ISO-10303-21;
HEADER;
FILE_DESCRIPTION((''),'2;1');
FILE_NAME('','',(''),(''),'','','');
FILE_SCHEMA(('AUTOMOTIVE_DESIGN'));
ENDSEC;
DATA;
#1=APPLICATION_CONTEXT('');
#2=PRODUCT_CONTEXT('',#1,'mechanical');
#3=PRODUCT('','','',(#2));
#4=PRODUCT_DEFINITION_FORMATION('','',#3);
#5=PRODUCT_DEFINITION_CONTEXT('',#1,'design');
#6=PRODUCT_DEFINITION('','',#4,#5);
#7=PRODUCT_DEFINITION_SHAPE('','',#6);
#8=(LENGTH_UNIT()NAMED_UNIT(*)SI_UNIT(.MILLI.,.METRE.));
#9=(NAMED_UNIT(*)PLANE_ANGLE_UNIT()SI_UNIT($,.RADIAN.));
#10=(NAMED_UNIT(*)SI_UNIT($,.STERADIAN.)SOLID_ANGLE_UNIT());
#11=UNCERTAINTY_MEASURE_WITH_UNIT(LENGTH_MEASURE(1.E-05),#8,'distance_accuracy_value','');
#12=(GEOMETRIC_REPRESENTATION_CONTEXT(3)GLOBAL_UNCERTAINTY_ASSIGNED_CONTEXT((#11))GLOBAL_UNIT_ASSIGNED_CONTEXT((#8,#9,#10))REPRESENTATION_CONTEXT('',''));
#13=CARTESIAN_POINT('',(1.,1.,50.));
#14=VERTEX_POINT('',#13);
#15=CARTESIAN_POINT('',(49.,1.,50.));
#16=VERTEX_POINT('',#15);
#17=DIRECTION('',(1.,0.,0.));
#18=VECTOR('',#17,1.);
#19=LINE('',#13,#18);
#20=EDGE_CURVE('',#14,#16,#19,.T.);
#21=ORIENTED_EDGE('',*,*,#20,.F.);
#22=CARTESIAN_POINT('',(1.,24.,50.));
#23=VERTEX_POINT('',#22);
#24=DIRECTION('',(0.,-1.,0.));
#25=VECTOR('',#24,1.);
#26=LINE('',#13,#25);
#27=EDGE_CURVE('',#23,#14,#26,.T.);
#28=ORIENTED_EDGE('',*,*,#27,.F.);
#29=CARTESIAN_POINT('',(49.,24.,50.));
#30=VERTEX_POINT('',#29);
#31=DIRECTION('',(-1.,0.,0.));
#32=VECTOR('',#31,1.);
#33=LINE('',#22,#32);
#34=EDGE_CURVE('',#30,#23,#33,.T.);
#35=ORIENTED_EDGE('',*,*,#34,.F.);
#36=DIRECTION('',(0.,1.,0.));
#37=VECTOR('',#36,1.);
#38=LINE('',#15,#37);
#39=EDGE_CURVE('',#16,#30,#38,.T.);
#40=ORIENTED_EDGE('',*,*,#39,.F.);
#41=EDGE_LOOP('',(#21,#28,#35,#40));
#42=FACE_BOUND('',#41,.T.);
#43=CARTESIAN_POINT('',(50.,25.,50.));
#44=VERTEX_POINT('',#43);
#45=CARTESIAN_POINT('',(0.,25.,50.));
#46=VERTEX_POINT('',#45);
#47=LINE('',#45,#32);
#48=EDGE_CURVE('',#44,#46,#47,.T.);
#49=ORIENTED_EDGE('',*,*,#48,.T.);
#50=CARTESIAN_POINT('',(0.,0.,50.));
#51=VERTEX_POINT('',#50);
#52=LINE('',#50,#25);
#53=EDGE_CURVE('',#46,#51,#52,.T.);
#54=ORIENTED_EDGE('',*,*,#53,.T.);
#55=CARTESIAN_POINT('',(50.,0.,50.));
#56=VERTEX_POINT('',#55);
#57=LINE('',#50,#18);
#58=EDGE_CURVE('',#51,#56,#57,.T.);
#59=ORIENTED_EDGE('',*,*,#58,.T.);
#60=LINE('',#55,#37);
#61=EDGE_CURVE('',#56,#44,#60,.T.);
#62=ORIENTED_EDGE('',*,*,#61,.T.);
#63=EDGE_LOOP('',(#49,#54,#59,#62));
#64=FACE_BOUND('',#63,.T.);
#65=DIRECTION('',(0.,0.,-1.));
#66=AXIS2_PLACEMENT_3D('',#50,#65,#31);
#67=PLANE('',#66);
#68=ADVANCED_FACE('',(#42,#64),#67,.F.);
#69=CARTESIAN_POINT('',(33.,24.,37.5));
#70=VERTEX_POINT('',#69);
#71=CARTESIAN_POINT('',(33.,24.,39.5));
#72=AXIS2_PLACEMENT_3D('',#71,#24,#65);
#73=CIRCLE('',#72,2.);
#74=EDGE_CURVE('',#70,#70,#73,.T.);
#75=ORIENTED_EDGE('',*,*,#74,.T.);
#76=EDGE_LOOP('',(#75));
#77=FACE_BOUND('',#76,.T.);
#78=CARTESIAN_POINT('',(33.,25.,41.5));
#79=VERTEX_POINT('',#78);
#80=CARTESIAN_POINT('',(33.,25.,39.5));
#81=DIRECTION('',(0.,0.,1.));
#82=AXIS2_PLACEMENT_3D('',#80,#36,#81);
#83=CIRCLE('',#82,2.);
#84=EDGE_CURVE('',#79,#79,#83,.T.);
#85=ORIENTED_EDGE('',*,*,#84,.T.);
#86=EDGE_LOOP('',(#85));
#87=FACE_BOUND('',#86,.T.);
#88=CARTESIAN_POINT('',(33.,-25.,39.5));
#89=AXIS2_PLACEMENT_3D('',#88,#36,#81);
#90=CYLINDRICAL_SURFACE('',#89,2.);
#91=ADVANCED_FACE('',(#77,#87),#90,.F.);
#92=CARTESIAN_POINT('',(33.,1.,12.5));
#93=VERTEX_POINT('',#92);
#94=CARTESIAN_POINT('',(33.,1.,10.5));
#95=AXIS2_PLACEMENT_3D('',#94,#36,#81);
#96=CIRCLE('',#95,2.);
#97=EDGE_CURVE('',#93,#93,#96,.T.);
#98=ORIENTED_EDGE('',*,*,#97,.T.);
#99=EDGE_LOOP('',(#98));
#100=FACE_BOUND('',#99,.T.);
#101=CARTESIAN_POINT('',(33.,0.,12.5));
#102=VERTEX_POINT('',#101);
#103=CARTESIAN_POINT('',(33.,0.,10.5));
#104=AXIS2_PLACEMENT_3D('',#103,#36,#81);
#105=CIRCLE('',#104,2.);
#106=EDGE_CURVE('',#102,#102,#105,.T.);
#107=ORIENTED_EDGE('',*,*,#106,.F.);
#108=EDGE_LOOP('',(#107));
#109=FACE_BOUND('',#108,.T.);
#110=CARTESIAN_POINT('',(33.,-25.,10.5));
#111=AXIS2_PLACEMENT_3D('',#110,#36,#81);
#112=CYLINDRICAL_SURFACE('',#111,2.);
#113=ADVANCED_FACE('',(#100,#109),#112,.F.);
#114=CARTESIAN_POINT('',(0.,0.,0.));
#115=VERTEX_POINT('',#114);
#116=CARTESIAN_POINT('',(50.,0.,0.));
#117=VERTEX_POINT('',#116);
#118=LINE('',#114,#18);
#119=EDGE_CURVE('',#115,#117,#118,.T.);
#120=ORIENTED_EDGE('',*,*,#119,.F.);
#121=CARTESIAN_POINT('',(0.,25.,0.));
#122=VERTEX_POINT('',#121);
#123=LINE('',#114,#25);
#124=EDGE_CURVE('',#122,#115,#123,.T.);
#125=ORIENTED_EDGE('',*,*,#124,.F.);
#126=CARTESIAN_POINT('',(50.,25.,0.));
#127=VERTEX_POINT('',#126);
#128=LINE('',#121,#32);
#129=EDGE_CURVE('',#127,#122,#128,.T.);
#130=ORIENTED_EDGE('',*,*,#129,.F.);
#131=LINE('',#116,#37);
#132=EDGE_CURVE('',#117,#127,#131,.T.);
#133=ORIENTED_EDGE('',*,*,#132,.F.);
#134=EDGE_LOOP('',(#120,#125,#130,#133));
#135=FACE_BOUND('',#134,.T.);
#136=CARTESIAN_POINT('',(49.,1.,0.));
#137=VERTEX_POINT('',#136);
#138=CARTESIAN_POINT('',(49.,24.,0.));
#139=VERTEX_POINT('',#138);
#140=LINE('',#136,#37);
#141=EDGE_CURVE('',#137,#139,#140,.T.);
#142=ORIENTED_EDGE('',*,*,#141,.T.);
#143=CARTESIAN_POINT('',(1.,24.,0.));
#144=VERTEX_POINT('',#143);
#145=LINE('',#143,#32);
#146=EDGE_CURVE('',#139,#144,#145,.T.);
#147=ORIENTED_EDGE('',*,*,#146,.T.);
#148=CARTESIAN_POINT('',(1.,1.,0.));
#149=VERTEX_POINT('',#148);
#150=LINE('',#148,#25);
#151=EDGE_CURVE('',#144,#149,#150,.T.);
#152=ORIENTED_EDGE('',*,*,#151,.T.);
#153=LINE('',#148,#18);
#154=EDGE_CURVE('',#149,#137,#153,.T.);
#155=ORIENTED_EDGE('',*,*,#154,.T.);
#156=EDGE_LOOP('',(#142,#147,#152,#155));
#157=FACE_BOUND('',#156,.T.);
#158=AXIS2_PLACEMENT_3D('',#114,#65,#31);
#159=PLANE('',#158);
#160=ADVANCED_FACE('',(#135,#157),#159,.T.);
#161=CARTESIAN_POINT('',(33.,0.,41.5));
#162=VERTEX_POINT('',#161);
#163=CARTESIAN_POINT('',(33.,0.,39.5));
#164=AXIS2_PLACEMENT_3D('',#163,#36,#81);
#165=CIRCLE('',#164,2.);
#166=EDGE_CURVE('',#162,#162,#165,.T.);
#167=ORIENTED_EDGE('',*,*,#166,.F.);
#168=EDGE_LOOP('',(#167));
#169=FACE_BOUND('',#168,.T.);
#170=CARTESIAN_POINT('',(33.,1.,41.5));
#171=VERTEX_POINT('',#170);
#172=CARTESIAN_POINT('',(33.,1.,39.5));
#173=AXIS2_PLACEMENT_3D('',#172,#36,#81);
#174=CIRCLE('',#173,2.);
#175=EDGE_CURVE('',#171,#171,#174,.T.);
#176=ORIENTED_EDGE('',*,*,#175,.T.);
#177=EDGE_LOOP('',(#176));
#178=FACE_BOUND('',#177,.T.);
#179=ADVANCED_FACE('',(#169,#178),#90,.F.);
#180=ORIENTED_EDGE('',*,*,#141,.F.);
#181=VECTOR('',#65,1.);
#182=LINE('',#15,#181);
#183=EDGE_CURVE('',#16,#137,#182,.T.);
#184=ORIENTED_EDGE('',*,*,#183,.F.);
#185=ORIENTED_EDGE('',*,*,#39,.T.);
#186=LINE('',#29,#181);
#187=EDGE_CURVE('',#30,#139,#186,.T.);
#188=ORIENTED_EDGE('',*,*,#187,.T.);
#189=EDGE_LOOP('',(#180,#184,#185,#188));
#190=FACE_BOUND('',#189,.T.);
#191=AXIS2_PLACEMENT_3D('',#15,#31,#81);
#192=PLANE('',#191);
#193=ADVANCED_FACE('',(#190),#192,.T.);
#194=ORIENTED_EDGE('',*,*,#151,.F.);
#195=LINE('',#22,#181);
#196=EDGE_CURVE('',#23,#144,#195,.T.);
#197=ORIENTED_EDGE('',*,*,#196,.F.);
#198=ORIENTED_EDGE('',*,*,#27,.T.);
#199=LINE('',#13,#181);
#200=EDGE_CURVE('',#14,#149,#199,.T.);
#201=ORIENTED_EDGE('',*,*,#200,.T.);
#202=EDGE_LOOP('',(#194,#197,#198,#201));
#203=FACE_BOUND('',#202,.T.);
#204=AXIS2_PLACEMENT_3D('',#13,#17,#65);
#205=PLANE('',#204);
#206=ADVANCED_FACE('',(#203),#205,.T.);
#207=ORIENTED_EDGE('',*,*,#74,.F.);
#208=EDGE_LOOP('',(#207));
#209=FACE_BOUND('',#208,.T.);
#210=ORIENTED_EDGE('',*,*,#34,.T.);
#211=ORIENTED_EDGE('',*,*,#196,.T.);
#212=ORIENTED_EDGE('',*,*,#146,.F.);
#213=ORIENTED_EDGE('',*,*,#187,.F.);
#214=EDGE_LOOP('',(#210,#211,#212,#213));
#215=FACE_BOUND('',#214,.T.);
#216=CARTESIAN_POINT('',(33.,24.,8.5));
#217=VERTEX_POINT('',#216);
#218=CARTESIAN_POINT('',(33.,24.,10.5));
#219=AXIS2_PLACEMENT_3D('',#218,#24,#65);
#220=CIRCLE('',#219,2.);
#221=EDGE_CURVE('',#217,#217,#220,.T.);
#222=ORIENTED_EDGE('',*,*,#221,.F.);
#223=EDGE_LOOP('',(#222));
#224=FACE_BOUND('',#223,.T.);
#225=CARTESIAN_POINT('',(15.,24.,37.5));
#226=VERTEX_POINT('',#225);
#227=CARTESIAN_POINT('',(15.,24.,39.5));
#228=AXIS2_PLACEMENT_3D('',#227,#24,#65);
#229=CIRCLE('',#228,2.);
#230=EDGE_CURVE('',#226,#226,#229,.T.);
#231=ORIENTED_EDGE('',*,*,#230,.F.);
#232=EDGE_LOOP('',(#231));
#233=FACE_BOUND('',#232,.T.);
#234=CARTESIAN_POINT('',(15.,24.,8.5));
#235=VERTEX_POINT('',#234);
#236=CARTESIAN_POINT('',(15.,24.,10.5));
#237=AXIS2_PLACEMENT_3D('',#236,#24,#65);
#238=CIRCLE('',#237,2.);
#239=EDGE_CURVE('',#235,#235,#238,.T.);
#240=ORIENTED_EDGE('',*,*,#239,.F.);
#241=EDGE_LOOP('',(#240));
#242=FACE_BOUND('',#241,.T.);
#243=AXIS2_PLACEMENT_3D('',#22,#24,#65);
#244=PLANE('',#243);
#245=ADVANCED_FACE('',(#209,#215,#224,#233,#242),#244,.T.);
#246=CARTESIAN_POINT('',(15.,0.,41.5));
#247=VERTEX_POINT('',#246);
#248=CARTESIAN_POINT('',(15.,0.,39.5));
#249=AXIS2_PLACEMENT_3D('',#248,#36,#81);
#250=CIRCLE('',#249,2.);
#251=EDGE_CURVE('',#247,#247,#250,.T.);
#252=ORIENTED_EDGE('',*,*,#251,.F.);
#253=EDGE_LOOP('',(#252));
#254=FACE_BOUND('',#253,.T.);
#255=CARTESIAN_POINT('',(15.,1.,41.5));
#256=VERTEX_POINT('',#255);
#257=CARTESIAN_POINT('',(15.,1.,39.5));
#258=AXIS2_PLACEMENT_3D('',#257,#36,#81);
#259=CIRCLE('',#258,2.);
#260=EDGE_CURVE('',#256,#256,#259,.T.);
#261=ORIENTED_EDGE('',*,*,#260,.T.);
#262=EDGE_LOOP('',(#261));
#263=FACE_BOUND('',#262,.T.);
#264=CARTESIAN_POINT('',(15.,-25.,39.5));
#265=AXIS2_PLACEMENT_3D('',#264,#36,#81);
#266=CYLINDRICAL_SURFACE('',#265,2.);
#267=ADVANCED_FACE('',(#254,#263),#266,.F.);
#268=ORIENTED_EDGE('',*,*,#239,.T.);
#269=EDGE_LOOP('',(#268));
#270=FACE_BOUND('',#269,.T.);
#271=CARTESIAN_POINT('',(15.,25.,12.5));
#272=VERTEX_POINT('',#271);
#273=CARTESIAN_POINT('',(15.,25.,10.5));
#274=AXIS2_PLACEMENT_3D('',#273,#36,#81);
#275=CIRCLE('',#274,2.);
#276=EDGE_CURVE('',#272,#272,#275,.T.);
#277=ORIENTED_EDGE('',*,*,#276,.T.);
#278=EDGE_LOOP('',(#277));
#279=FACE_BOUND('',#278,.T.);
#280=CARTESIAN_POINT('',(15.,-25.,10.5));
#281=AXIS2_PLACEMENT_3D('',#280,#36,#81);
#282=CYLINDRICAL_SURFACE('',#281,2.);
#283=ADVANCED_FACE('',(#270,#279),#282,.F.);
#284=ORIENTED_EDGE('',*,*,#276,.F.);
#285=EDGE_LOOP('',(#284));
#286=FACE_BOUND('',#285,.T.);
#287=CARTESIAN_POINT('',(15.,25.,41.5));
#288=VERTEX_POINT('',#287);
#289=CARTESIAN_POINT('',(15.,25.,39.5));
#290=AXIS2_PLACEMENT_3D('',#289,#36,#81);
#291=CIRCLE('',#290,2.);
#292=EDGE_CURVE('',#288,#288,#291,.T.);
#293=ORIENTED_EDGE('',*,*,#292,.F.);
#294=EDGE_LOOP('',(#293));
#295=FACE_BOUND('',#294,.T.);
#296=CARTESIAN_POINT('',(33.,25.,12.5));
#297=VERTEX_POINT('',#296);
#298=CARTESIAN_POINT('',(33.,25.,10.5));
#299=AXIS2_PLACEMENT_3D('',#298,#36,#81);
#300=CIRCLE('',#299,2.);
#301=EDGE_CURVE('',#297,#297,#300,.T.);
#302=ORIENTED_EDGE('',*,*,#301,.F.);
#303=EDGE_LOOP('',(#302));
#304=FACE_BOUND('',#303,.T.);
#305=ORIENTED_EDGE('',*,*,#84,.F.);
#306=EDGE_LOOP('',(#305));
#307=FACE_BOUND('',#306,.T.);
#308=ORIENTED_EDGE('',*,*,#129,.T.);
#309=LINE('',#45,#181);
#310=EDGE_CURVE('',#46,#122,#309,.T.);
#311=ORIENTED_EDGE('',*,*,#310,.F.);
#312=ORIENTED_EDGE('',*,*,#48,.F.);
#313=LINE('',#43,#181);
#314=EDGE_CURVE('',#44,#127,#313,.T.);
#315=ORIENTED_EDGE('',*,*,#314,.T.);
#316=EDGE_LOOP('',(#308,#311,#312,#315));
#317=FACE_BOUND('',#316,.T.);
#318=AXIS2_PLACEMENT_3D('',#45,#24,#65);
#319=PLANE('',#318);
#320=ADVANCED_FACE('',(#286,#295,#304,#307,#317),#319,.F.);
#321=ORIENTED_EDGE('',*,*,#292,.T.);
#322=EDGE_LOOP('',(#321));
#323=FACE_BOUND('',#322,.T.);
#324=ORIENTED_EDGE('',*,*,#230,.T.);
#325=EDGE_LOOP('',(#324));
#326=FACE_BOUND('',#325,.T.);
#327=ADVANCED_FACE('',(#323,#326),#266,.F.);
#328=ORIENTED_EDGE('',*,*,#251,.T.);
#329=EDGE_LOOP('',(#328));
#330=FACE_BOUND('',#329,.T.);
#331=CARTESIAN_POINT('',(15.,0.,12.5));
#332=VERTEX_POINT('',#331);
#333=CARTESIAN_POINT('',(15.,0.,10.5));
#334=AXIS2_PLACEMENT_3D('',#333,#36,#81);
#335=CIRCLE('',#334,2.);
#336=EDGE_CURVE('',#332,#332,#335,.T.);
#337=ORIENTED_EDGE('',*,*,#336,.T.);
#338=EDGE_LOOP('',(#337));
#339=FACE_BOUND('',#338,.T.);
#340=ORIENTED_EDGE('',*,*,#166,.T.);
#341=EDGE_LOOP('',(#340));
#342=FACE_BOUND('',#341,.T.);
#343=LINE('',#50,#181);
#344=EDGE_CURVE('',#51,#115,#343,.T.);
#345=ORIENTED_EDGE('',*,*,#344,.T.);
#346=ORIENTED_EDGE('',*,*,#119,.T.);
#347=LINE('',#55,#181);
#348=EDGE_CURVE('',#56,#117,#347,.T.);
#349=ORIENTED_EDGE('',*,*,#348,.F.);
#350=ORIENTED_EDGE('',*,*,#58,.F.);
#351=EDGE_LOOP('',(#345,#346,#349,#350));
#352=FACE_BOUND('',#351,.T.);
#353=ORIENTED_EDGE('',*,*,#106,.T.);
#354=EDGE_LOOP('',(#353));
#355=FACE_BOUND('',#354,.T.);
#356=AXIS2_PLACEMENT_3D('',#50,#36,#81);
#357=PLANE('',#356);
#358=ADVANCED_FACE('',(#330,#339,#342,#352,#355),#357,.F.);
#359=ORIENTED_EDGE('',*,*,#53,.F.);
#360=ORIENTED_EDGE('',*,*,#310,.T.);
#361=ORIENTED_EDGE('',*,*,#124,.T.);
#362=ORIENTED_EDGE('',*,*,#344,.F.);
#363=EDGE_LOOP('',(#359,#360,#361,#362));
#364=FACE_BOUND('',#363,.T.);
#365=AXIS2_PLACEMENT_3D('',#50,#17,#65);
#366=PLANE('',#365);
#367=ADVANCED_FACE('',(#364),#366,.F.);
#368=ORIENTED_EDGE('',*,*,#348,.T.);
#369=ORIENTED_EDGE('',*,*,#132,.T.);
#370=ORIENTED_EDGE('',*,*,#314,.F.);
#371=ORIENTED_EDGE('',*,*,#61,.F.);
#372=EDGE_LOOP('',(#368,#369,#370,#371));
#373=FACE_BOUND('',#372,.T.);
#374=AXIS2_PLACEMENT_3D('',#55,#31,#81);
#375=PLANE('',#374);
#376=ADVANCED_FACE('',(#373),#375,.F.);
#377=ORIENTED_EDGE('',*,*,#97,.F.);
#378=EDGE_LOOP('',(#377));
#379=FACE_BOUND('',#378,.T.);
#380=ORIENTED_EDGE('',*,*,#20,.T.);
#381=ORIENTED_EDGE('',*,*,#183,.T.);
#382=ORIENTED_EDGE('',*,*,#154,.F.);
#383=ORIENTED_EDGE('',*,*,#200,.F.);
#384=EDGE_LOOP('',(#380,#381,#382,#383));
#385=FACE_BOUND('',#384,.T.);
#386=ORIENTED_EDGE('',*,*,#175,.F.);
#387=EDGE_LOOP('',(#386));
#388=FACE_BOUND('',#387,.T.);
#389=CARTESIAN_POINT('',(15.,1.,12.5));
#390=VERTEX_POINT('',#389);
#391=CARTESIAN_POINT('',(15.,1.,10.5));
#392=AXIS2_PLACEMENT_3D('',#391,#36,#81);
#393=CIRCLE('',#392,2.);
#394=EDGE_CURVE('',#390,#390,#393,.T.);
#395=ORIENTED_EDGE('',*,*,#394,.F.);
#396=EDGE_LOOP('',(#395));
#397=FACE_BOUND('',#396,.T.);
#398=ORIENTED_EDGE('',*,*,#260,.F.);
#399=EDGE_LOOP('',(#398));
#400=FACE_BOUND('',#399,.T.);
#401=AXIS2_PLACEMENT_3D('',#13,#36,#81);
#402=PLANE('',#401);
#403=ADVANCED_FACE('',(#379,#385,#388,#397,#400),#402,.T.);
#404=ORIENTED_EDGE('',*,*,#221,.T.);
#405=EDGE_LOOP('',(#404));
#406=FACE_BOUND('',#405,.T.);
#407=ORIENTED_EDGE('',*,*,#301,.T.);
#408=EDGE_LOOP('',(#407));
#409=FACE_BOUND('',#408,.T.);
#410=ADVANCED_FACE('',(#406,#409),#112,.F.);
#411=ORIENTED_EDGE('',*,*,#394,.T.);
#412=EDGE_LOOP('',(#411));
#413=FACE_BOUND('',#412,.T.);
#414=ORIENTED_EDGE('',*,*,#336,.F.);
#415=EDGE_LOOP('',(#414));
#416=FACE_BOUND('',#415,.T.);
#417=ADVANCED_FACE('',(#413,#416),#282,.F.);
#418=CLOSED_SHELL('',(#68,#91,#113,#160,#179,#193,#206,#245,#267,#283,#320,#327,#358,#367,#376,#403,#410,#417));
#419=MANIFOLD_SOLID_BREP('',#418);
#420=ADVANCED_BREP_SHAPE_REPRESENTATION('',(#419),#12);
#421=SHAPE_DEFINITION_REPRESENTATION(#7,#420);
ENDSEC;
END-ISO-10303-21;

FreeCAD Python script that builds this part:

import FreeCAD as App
import Part
import Sketcher
from FreeCAD import Vector

doc = App.newDocument("Part")
body = doc.addObject("PartDesign::Body", "Body")

# Sketch on XY plane
sketch1 = body.newObject("Sketcher::SketchObject", "Sketch")
sketch1.AttachmentSupport = (doc.getObject("XY_Plane"), [""])
sketch1.MapMode = "FlatFace"
sketch1.addGeometry(Part.LineSegment(Vector(0, 25, 0), Vector(0, 0, 0)), False)
sketch1.addGeometry(Part.LineSegment(Vector(0, 0, 0), Vector(50, 0, 0)), False)
sketch1.addGeometry(Part.LineSegment(Vector(50, 0, 0), Vector(50, 25, 0)), False)
sketch1.addGeometry(Part.LineSegment(Vector(50, 25, 0), Vector(0, 25, 0)), False)
sketch1.addGeometry(Part.LineSegment(Vector(49, 1, 0), Vector(1, 1, 0)), False)
sketch1.addGeometry(Part.LineSegment(Vector(1, 1, 0), Vector(1, 24, 0)), False)
sketch1.addGeometry(Part.LineSegment(Vector(1, 24, 0), Vector(49, 24, 0)), False)
sketch1.addGeometry(Part.LineSegment(Vector(49, 24, 0), Vector(49, 1, 0)), False)
sketch1.addConstraint(Sketcher.Constraint("Coincident", 0, 2, 1, 1))
sketch1.addConstraint(Sketcher.Constraint("Coincident", 1, 2, 2, 1))
sketch1.addConstraint(Sketcher.Constraint("Coincident", 2, 2, 3, 1))
sketch1.addConstraint(Sketcher.Constraint("Coincident", 3, 2, 0, 1))
sketch1.addConstraint(Sketcher.Constraint("Coincident", 4, 2, 5, 1))
sketch1.addConstraint(Sketcher.Constraint("Coincident", 5, 2, 6, 1))
sketch1.addConstraint(Sketcher.Constraint("Coincident", 6, 2, 7, 1))
sketch1.addConstraint(Sketcher.Constraint("Coincident", 7, 2, 4, 1))
sketch1.addConstraint(Sketcher.Constraint("Vertical", 0))
sketch1.addConstraint(Sketcher.Constraint("Horizontal", 1))
sketch1.addConstraint(Sketcher.Constraint("Vertical", 2))
sketch1.addConstraint(Sketcher.Constraint("Horizontal", 3))
sketch1.addConstraint(Sketcher.Constraint("Horizontal", 4))
sketch1.addConstraint(Sketcher.Constraint("Vertical", 5))
sketch1.addConstraint(Sketcher.Constraint("Horizontal", 6))
sketch1.addConstraint(Sketcher.Constraint("Vertical", 7))
sketch1.addConstraint(Sketcher.Constraint("Coincident", 0, 2, -1, 1))
sketch1.addConstraint(Sketcher.Constraint("DistanceX", 1, 1, 1, 2, 50.0))
sketch1.addConstraint(Sketcher.Constraint("DistanceX", 4, 2, 4, 1, 48.0))
sketch1.addConstraint(Sketcher.Constraint("DistanceY", 0, 2, 0, 1, 25.0))
sketch1.addConstraint(Sketcher.Constraint("DistanceY", 5, 1, 5, 2, 23.0))
sketch1.addConstraint(Sketcher.Constraint("DistanceX", -1, 1, 4, 2, 1.0))
sketch1.addConstraint(Sketcher.Constraint("DistanceY", -1, 1, 4, 2, 1.0))
pad1 = body.newObject("PartDesign::Pad", "Pad")
pad1.Profile = sketch1
pad1.Length = 50

# Sketch on XZ plane
sketch2 = body.newObject("Sketcher::SketchObject", "Sketch001")
sketch2.AttachmentSupport = (doc.getObject("XZ_Plane"), [""])
sketch2.MapMode = "FlatFace"
sketch2.AttachmentOffset = App.Placement(Vector(0, 0, -25), App.Rotation())
sketch2.addGeometry(Part.Circle(Vector(15, 10.5, 0), Vector(0, 0, 1), 2), False)
sketch2.addGeometry(Part.Circle(Vector(33, 10.5, 0), Vector(0, 0, 1), 2), False)
sketch2.addGeometry(Part.Circle(Vector(33, 39.5, 0), Vector(0, 0, 1), 2), False)
sketch2.addGeometry(Part.Circle(Vector(15, 39.5, 0), Vector(0, 0, 1), 2), False)
sketch2.addConstraint(Sketcher.Constraint("Equal", 0, 1))
sketch2.addConstraint(Sketcher.Constraint("Equal", 1, 2))
sketch2.addConstraint(Sketcher.Constraint("Equal", 2, 3))
sketch2.addConstraint(Sketcher.Constraint("Horizontal", 0, 3, 1, 3))
sketch2.addConstraint(Sketcher.Constraint("Horizontal", 2, 3, 3, 3))
sketch2.addConstraint(Sketcher.Constraint("Vertical", 1, 3, 2, 3))
sketch2.addConstraint(Sketcher.Constraint("Vertical", 0, 3, 3, 3))
sketch2.addConstraint(Sketcher.Constraint("Diameter", 0, 4.0))
sketch2.addConstraint(Sketcher.Constraint("DistanceX", -1, 1, 0, 3, 15.0))
sketch2.addConstraint(Sketcher.Constraint("DistanceX", -1, 1, 1, 3, 33.0))
sketch2.addConstraint(Sketcher.Constraint("DistanceY", 1, 3, 2, 3, 29.0))
sketch2.addConstraint(Sketcher.Constraint("DistanceY", -1, 1, 0, 3, 10.5))
pocket1 = body.newObject("PartDesign::Pocket", "Pocket")
pocket1.Profile = sketch2
pocket1.Length = 50
pocket1.Reversed = True

doc.recompute()
